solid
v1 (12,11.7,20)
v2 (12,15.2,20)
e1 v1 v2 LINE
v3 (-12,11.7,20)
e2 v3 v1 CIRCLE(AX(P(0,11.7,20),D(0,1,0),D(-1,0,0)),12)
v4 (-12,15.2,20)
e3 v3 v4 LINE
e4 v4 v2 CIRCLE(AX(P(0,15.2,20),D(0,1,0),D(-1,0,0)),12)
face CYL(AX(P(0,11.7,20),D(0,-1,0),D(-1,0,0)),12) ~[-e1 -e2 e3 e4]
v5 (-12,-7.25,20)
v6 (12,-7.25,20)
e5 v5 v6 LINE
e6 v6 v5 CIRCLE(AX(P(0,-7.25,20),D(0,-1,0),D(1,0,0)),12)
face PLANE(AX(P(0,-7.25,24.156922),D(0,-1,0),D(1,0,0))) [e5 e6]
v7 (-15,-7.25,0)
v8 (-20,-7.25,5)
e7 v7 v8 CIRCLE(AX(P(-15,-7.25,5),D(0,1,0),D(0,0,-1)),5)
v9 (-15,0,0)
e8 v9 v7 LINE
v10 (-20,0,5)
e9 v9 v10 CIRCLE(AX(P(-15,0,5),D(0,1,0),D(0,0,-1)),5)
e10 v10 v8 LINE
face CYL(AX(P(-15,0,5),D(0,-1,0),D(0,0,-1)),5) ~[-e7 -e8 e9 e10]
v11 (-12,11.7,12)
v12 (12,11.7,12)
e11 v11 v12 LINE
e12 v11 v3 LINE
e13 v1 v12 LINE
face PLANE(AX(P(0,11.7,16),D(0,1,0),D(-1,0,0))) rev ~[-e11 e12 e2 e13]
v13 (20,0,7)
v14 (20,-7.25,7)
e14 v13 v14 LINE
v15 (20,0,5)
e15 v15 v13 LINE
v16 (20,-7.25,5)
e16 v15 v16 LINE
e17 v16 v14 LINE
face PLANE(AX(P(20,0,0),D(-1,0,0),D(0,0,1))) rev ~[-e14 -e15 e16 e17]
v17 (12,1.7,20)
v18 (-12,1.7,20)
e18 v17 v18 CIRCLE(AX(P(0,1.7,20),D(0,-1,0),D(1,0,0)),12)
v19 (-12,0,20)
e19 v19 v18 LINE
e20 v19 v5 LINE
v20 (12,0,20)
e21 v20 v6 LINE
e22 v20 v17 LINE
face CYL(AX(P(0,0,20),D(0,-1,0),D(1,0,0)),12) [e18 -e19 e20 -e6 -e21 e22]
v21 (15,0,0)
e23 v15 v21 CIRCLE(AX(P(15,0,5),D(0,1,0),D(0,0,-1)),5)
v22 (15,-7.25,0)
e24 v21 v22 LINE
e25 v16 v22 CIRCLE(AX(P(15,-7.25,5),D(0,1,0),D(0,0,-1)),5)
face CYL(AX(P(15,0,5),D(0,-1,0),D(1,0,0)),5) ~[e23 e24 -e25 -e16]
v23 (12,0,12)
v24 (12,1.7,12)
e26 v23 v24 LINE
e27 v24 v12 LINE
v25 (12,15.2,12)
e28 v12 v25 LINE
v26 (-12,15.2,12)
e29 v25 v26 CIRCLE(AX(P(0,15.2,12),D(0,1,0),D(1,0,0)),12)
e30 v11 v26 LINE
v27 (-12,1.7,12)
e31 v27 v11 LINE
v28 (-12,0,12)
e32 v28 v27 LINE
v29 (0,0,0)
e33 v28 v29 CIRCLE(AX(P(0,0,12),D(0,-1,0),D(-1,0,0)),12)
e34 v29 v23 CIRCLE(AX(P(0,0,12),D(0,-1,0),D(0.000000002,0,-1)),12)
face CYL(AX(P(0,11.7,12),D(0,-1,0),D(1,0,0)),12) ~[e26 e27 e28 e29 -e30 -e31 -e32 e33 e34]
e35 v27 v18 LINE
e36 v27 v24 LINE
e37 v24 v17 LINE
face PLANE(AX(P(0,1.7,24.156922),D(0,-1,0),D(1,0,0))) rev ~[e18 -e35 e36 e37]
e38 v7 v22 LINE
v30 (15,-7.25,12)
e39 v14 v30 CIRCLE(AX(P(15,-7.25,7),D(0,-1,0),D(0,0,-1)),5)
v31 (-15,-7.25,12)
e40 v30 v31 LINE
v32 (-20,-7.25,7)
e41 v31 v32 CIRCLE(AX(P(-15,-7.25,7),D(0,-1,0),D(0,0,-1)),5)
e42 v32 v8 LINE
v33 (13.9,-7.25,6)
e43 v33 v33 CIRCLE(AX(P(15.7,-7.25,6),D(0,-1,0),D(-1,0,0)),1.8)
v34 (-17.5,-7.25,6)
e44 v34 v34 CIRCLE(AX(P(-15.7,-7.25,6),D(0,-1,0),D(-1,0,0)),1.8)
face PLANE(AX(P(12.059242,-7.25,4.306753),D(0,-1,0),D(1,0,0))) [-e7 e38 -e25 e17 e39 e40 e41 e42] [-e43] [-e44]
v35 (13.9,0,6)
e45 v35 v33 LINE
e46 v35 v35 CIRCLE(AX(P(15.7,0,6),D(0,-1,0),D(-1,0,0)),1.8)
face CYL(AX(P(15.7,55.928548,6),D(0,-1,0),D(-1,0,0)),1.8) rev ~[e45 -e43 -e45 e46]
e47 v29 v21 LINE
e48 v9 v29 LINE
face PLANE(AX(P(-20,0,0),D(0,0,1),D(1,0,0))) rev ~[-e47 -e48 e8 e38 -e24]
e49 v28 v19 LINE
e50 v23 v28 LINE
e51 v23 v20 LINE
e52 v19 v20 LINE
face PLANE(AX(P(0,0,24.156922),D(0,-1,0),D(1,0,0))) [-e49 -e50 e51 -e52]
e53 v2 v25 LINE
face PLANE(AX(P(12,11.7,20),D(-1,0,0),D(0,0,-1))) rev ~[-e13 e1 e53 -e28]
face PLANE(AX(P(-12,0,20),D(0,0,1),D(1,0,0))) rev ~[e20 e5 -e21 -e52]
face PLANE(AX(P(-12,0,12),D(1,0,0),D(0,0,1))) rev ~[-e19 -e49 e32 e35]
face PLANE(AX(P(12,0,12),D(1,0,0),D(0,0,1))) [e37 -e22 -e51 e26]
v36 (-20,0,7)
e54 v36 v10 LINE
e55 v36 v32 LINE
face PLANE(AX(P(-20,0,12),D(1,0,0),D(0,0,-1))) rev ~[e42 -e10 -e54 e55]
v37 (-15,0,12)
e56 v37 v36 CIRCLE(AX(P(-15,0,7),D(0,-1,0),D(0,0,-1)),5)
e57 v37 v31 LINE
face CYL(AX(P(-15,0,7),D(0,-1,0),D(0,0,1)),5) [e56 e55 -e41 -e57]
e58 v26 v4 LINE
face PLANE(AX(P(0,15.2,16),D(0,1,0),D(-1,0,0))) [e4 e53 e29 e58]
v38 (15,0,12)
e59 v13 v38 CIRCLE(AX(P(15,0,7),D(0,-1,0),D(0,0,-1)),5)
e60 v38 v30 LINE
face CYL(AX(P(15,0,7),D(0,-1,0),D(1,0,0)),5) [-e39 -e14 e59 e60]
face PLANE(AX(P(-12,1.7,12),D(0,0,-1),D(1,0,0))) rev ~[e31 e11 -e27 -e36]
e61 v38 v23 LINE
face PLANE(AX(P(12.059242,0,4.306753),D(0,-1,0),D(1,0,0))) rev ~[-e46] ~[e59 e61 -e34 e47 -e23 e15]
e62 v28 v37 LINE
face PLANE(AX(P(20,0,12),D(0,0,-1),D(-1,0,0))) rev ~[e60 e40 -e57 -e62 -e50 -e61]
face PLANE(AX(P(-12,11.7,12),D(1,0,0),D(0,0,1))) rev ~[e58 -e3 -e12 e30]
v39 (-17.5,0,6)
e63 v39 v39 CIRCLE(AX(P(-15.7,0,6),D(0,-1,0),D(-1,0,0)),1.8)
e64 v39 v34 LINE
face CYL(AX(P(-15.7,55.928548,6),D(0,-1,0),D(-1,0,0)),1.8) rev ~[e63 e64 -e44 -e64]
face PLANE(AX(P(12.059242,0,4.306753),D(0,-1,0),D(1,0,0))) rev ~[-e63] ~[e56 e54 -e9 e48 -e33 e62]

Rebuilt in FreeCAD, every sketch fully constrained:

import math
import FreeCAD as App
import Part
import Sketcher
from FreeCAD import Vector
Q = App.Units.Quantity


def edges_at(feature, points):
    """Names of the edges that pass closest to the given points."""
    edges = feature.Shape.Edges
    near = lambda p: min(range(len(edges)), key=lambda i: edges[i].distToShape(Part.Vertex(*p))[0])
    return sorted({f"Edge{near(p) + 1}" for p in points})

doc = App.newDocument("Part")
params = doc.addObject("Spreadsheet::Sheet", "Params")
for row, (alias, value) in enumerate([
    ("sketch1_width", "40 mm"),
    ("sketch1_height", "12 mm"),
    ("pad1_length", "7.25 mm"),
    ("sketch2_radius", "12 mm"),
    ("pad2_length", "7.25 mm"),
    ("sketch3_radius", "12 mm"),
    ("sketch3_height", "8 mm"),
    ("pad3_length", "1.7 mm"),
    ("sketch4_radius", "12 mm"),
    ("pad4_length", "10 mm"),
    ("sketch5_radius", "12 mm"),
    ("sketch5_height", "8 mm"),
    ("pad5_length", "3.5 mm"),
    ("fillet_radius", "5 mm"),
    ("sketch6_diameter", "3.6 mm"),
    ("hole_diameter", "3.6 mm"),
], start=1):
    params.set(f"A{row}", alias)
    params.set(f"B{row}", "=" + value)
    params.setAlias(f"B{row}", alias)

body = doc.addObject("PartDesign::Body", "Body")

# Sketch on XZ plane
sketch1 = doc.addObject("Sketcher::SketchObject", "Sketch")
body.addObject(sketch1)
sketch1.AttachmentSupport = (doc.XZ_Plane, [""])
sketch1.MapMode = "FlatFace"
sketch1.addGeometry([
    Part.LineSegment(Vector(20, 12, 0), Vector(-20, 12, 0)),
    Part.LineSegment(Vector(-20, 12, 0), Vector(-20, 0, 0)),
    Part.LineSegment(Vector(-20, 0, 0), Vector(20, 0, 0)),
    Part.LineSegment(Vector(20, 0, 0), Vector(20, 12, 0)),
], False)
sketch1.addConstraint([
    Sketcher.Constraint("Coincident", 0, 2, 1, 1),
    Sketcher.Constraint("Coincident", 1, 2, 2, 1),
    Sketcher.Constraint("Coincident", 2, 2, 3, 1),
    Sketcher.Constraint("Coincident", 3, 2, 0, 1),
    Sketcher.Constraint("Horizontal", 0),
    Sketcher.Constraint("Vertical", 1),
    Sketcher.Constraint("Horizontal", 2),
    Sketcher.Constraint("Vertical", 3),
    Sketcher.Constraint("Symmetric", 1, 2, 2, 2, -1, 1),
    Sketcher.Constraint("DistanceX", 0, 2, 0, 1, Q("40 mm")),
    Sketcher.Constraint("DistanceY", 1, 2, 1, 1, Q("12 mm")),
])
sketch1.setExpression("Constraints[9]", "Params.sketch1_width")
sketch1.setExpression("Constraints[10]", "Params.sketch1_height")
pad1 = doc.addObject("PartDesign::Pad", "Pad")
body.addObject(pad1)
pad1.Profile = sketch1
pad1.setExpression("Length", "Params.pad1_length")
body2 = doc.addObject("PartDesign::Body", "Body001")

# Sketch on XZ plane
sketch2 = doc.addObject("Sketcher::SketchObject", "Sketch001")
body2.addObject(sketch2)
sketch2.AttachmentSupport = (doc.getObject("XZ_Plane001"), [""])
sketch2.MapMode = "FlatFace"
sketch2.addGeometry([
    Part.ArcOfCircle(Part.Circle(Vector(0, 20, 0), Vector(0, 0, 1), 12), math.radians(0), math.radians(180)),
    Part.LineSegment(Vector(-12, 20, 0), Vector(12, 20, 0)),
], False)
sketch2.addConstraint([
    Sketcher.Constraint("Coincident", 0, 1, 1, 2),
    Sketcher.Constraint("Coincident", 1, 1, 0, 2),
    Sketcher.Constraint("Horizontal", 1),
    Sketcher.Constraint("PointOnObject", 0, 3, -2),
    Sketcher.Constraint("Radius", 0, Q("12 mm")),
    Sketcher.Constraint("DistanceY", -1, 1, 0, 3, Q("20 mm")),
    Sketcher.Constraint("DistanceY", -1, 1, 0, 1, Q("20 mm")),
])
sketch2.setExpression("Constraints[4]", "Params.sketch2_radius")
pad2 = doc.addObject("PartDesign::Pad", "Pad001")
body2.addObject(pad2)
pad2.Profile = sketch2
pad2.setExpression("Length", "Params.pad2_length")
body.AllowCompound = True
doc.recompute()

boolean = doc.addObject("PartDesign::Boolean", "Boolean")
body.addObject(boolean)
boolean.Type = "Fuse"
boolean.addObjects([body2])

# Sketch on XZ plane
sketch3 = doc.addObject("Sketcher::SketchObject", "Sketch002")
body.addObject(sketch3)
sketch3.AttachmentSupport = (doc.XZ_Plane, [""])
sketch3.MapMode = "FlatFace"
sketch3.addGeometry([
    Part.ArcOfCircle(Part.Circle(Vector(0, 20, 0), Vector(0, 0, 1), 12), math.radians(0), math.radians(180)),  # 0
    Part.LineSegment(Vector(-12, 20, 0), Vector(-12, 12, 0)),  # 1
    Part.ArcOfCircle(Part.Circle(Vector(0, 12, 0), Vector(0, 0, 1), 12), math.radians(180), math.radians(270)),  # 2
    Part.ArcOfCircle(Part.Circle(Vector(0, 12, 0), Vector(0, 0, 1), 12), math.radians(-90), math.radians(0)),  # 3
    Part.LineSegment(Vector(12, 12, 0), Vector(12, 20, 0)),  # 4
], False)
sketch3.addConstraint([
    Sketcher.Constraint("Tangent", 0, 2, 1, 1),
    Sketcher.Constraint("Tangent", 1, 2, 2, 1),
    Sketcher.Constraint("Tangent", 2, 2, 3, 1),
    Sketcher.Constraint("Tangent", 3, 2, 4, 1),
    Sketcher.Constraint("Tangent", 4, 2, 0, 1),
    Sketcher.Constraint("Vertical", 1),
    Sketcher.Constraint("Vertical", 4),
    Sketcher.Constraint("Coincident", 2, 2, -1, 1),
    Sketcher.Constraint("Equal", 0, 2),
    Sketcher.Constraint("PointOnObject", 0, 3, -2),
    Sketcher.Constraint("Radius", 0, Q("12 mm")),
    Sketcher.Constraint("DistanceY", 1, 2, 1, 1, Q("8 mm")),
])
sketch3.setExpression("Constraints[10]", "Params.sketch3_radius")
sketch3.setExpression("Constraints[11]", "Params.sketch3_height")
pad3 = doc.addObject("PartDesign::Pad", "Pad002")
body.addObject(pad3)
pad3.Profile = sketch3
pad3.setExpression("Length", "Params.pad3_length")
pad3.Reversed = True

# Sketch on XZ plane
sketch4 = doc.addObject("Sketcher::SketchObject", "Sketch003")
body.addObject(sketch4)
sketch4.AttachmentSupport = (doc.XZ_Plane, [""])
sketch4.MapMode = "FlatFace"
sketch4.AttachmentOffset = App.Placement(Vector(0, 0, -1.7), App.Rotation())
sketch4.addGeometry([
    Part.ArcOfCircle(Part.Circle(Vector(0, 12, 0), Vector(0, 0, 1), 12), math.radians(180), math.radians(360)),
    Part.LineSegment(Vector(-12, 12, 0), Vector(12, 12, 0)),
], False)
sketch4.addConstraint([
    Sketcher.Constraint("Coincident", 0, 1, 1, 1),
    Sketcher.Constraint("Coincident", 1, 2, 0, 2),
    Sketcher.Constraint("Horizontal", 1),
    Sketcher.Constraint("PointOnObject", 0, 3, -2),
    Sketcher.Constraint("Radius", 0, Q("12 mm")),
    Sketcher.Constraint("DistanceY", -1, 1, 0, 3, Q("12 mm")),
    Sketcher.Constraint("DistanceY", -1, 1, 0, 1, Q("12 mm")),
])
sketch4.setExpression("Constraints[4]", "Params.sketch4_radius")
pad4 = doc.addObject("PartDesign::Pad", "Pad003")
body.addObject(pad4)
pad4.Profile = sketch4
pad4.setExpression("Length", "Params.pad4_length")
pad4.Reversed = True

# Sketch on XZ plane
sketch5 = doc.addObject("Sketcher::SketchObject", "Sketch004")
body.addObject(sketch5)
sketch5.AttachmentSupport = (doc.XZ_Plane, [""])
sketch5.MapMode = "FlatFace"
sketch5.AttachmentOffset = App.Placement(Vector(0, 0, -11.7), App.Rotation())
sketch5.addGeometry([
    Part.ArcOfCircle(Part.Circle(Vector(0, 20, 0), Vector(0, 0, 1), 12), math.radians(0), math.radians(180)),
    Part.LineSegment(Vector(12, 20, 0), Vector(12, 12, 0)),
    Part.ArcOfCircle(Part.Circle(Vector(0, 12, 0), Vector(0, 0, 1), 12), math.radians(180), math.radians(360)),
    Part.LineSegment(Vector(-12, 12, 0), Vector(-12, 20, 0)),
], False)
sketch5.addConstraint([
    Sketcher.Constraint("Tangent", 0, 1, 1, 1),
    Sketcher.Constraint("Tangent", 1, 2, 2, 2),
    Sketcher.Constraint("Tangent", 2, 1, 3, 1),
    Sketcher.Constraint("Tangent", 3, 2, 0, 2),
    Sketcher.Constraint("Vertical", 1),
    Sketcher.Constraint("Vertical", 3),
    Sketcher.Constraint("PointOnObject", 0, 3, -2),
    Sketcher.Constraint("Radius", 0, Q("12 mm")),
    Sketcher.Constraint("DistanceY", 1, 2, 1, 1, Q("8 mm")),
    Sketcher.Constraint("DistanceY", -1, 1, 0, 3, Q("20 mm")),
])
sketch5.setExpression("Constraints[7]", "Params.sketch5_radius")
sketch5.setExpression("Constraints[8]", "Params.sketch5_height")
pad5 = doc.addObject("PartDesign::Pad", "Pad004")
body.addObject(pad5)
pad5.Profile = sketch5
pad5.setExpression("Length", "Params.pad5_length")
pad5.Reversed = True
doc.recompute()

fillet = doc.addObject("PartDesign::Fillet", "Fillet")
body.addObject(fillet)
fillet.Base = (pad5, edges_at(pad5, [
    (-20, -3.625, 12),
    (-20, -3.625, 0),
    (20, -3.625, 12),
    (20, -3.625, 0),
]))
fillet.setExpression("Radius", "Params.fillet_radius")

# Sketch on XZ plane
sketch6 = doc.addObject("Sketcher::SketchObject", "Sketch005")
body.addObject(sketch6)
sketch6.AttachmentSupport = (doc.XZ_Plane, [""])
sketch6.MapMode = "FlatFace"
sketch6.addGeometry([
    Part.Circle(Vector(15.7, 6, 0), Vector(0, 0, 1), 1.8),
    Part.Circle(Vector(-15.7, 6, 0), Vector(0, 0, 1), 1.8),
], False)
sketch6.addConstraint([
    Sketcher.Constraint("Equal", 0, 1),
    Sketcher.Constraint("Symmetric", 0, 3, 1, 3, -2),
    Sketcher.Constraint("Diameter", 0, Q("3.6 mm")),
    Sketcher.Constraint("DistanceY", -1, 1, 0, 3, Q("6 mm")),
    Sketcher.Constraint("DistanceX", -1, 1, 0, 3, Q("15.7 mm")),
])
sketch6.setExpression("Constraints[2]", "Params.sketch6_diameter")
doc.recompute()
hole = doc.addObject("PartDesign::Hole", "Hole")
body.addObject(hole)
hole.Profile = sketch6
hole.ThreadType = "None"
hole.setExpression("Diameter", "Params.hole_diameter")
hole.DepthType = "ThroughAll"
hole.Reversed = True

doc.recompute()
